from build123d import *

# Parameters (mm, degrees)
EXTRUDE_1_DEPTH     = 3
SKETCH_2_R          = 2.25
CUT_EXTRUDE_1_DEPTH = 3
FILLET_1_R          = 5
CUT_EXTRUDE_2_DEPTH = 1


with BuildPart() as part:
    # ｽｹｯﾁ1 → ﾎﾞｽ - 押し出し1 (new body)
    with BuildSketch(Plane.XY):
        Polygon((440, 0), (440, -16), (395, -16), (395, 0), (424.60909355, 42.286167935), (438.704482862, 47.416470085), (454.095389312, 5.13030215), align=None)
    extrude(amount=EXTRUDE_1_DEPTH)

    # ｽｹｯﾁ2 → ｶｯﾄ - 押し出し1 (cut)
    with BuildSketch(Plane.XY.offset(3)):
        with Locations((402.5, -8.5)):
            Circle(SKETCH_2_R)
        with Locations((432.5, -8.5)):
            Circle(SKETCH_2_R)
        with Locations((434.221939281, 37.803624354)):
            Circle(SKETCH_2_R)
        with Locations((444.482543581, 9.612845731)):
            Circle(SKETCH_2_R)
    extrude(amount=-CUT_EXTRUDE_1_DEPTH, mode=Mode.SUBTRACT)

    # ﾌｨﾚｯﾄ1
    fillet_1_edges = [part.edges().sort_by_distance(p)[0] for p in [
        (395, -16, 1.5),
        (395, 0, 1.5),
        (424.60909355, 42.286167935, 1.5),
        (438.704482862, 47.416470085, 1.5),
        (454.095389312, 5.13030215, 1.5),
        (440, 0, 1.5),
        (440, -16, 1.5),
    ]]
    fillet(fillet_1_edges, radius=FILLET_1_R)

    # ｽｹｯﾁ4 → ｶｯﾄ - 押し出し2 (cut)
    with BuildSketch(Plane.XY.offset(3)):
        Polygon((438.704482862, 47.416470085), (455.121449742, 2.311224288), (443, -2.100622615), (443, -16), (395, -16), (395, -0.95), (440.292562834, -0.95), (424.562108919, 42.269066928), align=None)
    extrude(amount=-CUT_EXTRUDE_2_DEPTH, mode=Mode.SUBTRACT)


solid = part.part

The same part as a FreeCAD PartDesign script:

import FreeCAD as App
import Part
import Sketcher
from FreeCAD import Vector
Q = App.Units.Quantity


def edges_at(feature, points):
    """Names of the edges that pass closest to the given points."""
    edges = feature.Shape.Edges
    near = lambda p: min(range(len(edges)), key=lambda i: edges[i].distToShape(Part.Vertex(*p))[0])
    return sorted({f"Edge{near(p) + 1}" for p in points})


def add_polygon(sketch, points):
    """Adds a closed chain of lines whose ends are joined by coincident constraints."""
    first, n = sketch.GeometryCount, len(points)
    for a, b in zip(points, points[1:] + points[:1]):
        sketch.addGeometry(Part.LineSegment(App.Vector(*a, 0), App.Vector(*b, 0)), False)
    for i in range(n):
        sketch.addConstraint(Sketcher.Constraint("Coincident", first + i, 2, first + (i + 1) % n, 1))

doc = App.newDocument("Part")
body = doc.addObject("PartDesign::Body", "Body")

sketch1 = body.newObject("Sketcher::SketchObject", "Sketch")
sketch1.AttachmentSupport = (doc.getObject("XY_Plane"), [""])
sketch1.MapMode = "FlatFace"
add_polygon(sketch1, [(440, -16), (440, 0), (454, 5), (439, 47), (425, 42), (395, 0), (395, -16)])
sketch1.addConstraint([
    Sketcher.Constraint("Vertical", 0),
    Sketcher.Constraint("Vertical", 5),
    Sketcher.Constraint("Horizontal", 6),
    Sketcher.Constraint("PointOnObject", 0, 2, -1),
    Sketcher.Constraint("PointOnObject", 4, 2, -1),
    Sketcher.Constraint("Perpendicular", 1, 2),
    Sketcher.Constraint("Perpendicular", 2, 3),
    Sketcher.Constraint("Equal", 1, 3),
    Sketcher.Constraint("DistanceX", 6, 1, 6, 2, 45.0),
    Sketcher.Constraint("DistanceY", 0, 1, 0, 2, 16.0),
    Sketcher.Constraint("Angle", 1, Q("20 deg")),
    Sketcher.Constraint("Angle", 4, Q("-125 deg")),
    Sketcher.Constraint("Distance", 1, 15.0),
    Sketcher.Constraint("DistanceX", -1, 1, 0, 2, 440.0),
])
pad1 = body.newObject("PartDesign::Pad", "Pad")
pad1.Profile = sketch1
pad1.Length = 3

sketch2 = body.newObject("Sketcher::SketchObject", "Sketch001")
sketch2.AttachmentSupport = (doc.getObject("XY_Plane"), [""])
sketch2.MapMode = "FlatFace"
sketch2.AttachmentOffset = App.Placement(Vector(0, 0, 3), App.Rotation())
sketch2.addGeometry([
    Part.Circle(Vector(402.5, -8.5, 0), Vector(0, 0, 1), 2.2),
    Part.Circle(Vector(432.5, -8.5, 0), Vector(0, 0, 1), 2.2),
    Part.Circle(Vector(434.2, 37.8, 0), Vector(0, 0, 1), 2.2),
    Part.Circle(Vector(444.5, 9.6, 0), Vector(0, 0, 1), 2.2),
], False)
sketch2.addConstraint([
    Sketcher.Constraint("Equal", 0, 1),
    Sketcher.Constraint("Equal", 1, 2),
    Sketcher.Constraint("Equal", 2, 3),
    Sketcher.Constraint("Horizontal", 0, 3, 1, 3),
    Sketcher.Constraint("Diameter", 0, 4.5),
    Sketcher.Constraint("DistanceX", 0, 3, 1, 3, 30.0),
    Sketcher.Constraint("DistanceX", -1, 1, 0, 3, 402.5),
    Sketcher.Constraint("DistanceY", 0, 3, -1, 1, 8.5),
    Sketcher.Constraint("DistanceX", -1, 1, 2, 3, 434.221939),
    Sketcher.Constraint("DistanceY", 3, 3, 2, 3, 28.190779),
    Sketcher.Constraint("DistanceY", -1, 1, 2, 3, 37.803624),
    Sketcher.Constraint("DistanceX", -1, 1, 3, 3, 444.482544),
])
pocket1 = body.newObject("PartDesign::Pocket", "Pocket")
pocket1.Profile = sketch2
pocket1.Length = 3
doc.recompute()

fillet = body.newObject("PartDesign::Fillet", "Fillet")
fillet.Base = (pocket1, edges_at(pocket1, [
    (395, -16, 1.5),
    (395, 0, 1.5),
    (424.609, 42.286, 1.5),
    (438.704, 47.416, 1.5),
    (454.095, 5.13, 1.5),
    (440, 0, 1.5),
    (440, -16, 1.5),
]))
fillet.Radius = 5

sketch3 = body.newObject("Sketcher::SketchObject", "Sketch002")
sketch3.AttachmentSupport = (doc.getObject("XY_Plane"), [""])
sketch3.MapMode = "FlatFace"
sketch3.AttachmentOffset = App.Placement(Vector(0, 0, 3), App.Rotation())
add_polygon(sketch3, [(455, 2), (439, 47), (425, 42), (440, -1), (395, -1), (395, -16), (443, -16), (443, -2)])
sketch3.addConstraint([
    Sketcher.Constraint("Horizontal", 3),
    Sketcher.Constraint("Vertical", 4),
    Sketcher.Constraint("Horizontal", 5),
    Sketcher.Constraint("Vertical", 6),
    Sketcher.Constraint("Perpendicular", 0, 1),
    Sketcher.Constraint("Perpendicular", 1, 2),
    Sketcher.Constraint("Perpendicular", 2, 7),
    Sketcher.Constraint("DistanceX", 5, 1, 5, 2, 48.0),
    Sketcher.Constraint("Angle", 0, Q("110 deg")),
    Sketcher.Constraint("Distance", 0, 48.0),
    Sketcher.Constraint("DistanceX", -1, 1, 3, 2, 395.0),
    Sketcher.Constraint("DistanceY", 4, 2, -1, 1, 16.0),
    Sketcher.Constraint("DistanceY", 4, 2, 4, 1, 15.05),
    Sketcher.Constraint("Distance", 1, 15.05),
    Sketcher.Constraint("Distance", 2, 45.99277),
    Sketcher.Constraint("DistanceX", 3, 2, 3, 1, 45.292563),
])
pocket2 = body.newObject("PartDesign::Pocket", "Pocket001")
pocket2.Profile = sketch3
pocket2.Length = 1

doc.recompute()
